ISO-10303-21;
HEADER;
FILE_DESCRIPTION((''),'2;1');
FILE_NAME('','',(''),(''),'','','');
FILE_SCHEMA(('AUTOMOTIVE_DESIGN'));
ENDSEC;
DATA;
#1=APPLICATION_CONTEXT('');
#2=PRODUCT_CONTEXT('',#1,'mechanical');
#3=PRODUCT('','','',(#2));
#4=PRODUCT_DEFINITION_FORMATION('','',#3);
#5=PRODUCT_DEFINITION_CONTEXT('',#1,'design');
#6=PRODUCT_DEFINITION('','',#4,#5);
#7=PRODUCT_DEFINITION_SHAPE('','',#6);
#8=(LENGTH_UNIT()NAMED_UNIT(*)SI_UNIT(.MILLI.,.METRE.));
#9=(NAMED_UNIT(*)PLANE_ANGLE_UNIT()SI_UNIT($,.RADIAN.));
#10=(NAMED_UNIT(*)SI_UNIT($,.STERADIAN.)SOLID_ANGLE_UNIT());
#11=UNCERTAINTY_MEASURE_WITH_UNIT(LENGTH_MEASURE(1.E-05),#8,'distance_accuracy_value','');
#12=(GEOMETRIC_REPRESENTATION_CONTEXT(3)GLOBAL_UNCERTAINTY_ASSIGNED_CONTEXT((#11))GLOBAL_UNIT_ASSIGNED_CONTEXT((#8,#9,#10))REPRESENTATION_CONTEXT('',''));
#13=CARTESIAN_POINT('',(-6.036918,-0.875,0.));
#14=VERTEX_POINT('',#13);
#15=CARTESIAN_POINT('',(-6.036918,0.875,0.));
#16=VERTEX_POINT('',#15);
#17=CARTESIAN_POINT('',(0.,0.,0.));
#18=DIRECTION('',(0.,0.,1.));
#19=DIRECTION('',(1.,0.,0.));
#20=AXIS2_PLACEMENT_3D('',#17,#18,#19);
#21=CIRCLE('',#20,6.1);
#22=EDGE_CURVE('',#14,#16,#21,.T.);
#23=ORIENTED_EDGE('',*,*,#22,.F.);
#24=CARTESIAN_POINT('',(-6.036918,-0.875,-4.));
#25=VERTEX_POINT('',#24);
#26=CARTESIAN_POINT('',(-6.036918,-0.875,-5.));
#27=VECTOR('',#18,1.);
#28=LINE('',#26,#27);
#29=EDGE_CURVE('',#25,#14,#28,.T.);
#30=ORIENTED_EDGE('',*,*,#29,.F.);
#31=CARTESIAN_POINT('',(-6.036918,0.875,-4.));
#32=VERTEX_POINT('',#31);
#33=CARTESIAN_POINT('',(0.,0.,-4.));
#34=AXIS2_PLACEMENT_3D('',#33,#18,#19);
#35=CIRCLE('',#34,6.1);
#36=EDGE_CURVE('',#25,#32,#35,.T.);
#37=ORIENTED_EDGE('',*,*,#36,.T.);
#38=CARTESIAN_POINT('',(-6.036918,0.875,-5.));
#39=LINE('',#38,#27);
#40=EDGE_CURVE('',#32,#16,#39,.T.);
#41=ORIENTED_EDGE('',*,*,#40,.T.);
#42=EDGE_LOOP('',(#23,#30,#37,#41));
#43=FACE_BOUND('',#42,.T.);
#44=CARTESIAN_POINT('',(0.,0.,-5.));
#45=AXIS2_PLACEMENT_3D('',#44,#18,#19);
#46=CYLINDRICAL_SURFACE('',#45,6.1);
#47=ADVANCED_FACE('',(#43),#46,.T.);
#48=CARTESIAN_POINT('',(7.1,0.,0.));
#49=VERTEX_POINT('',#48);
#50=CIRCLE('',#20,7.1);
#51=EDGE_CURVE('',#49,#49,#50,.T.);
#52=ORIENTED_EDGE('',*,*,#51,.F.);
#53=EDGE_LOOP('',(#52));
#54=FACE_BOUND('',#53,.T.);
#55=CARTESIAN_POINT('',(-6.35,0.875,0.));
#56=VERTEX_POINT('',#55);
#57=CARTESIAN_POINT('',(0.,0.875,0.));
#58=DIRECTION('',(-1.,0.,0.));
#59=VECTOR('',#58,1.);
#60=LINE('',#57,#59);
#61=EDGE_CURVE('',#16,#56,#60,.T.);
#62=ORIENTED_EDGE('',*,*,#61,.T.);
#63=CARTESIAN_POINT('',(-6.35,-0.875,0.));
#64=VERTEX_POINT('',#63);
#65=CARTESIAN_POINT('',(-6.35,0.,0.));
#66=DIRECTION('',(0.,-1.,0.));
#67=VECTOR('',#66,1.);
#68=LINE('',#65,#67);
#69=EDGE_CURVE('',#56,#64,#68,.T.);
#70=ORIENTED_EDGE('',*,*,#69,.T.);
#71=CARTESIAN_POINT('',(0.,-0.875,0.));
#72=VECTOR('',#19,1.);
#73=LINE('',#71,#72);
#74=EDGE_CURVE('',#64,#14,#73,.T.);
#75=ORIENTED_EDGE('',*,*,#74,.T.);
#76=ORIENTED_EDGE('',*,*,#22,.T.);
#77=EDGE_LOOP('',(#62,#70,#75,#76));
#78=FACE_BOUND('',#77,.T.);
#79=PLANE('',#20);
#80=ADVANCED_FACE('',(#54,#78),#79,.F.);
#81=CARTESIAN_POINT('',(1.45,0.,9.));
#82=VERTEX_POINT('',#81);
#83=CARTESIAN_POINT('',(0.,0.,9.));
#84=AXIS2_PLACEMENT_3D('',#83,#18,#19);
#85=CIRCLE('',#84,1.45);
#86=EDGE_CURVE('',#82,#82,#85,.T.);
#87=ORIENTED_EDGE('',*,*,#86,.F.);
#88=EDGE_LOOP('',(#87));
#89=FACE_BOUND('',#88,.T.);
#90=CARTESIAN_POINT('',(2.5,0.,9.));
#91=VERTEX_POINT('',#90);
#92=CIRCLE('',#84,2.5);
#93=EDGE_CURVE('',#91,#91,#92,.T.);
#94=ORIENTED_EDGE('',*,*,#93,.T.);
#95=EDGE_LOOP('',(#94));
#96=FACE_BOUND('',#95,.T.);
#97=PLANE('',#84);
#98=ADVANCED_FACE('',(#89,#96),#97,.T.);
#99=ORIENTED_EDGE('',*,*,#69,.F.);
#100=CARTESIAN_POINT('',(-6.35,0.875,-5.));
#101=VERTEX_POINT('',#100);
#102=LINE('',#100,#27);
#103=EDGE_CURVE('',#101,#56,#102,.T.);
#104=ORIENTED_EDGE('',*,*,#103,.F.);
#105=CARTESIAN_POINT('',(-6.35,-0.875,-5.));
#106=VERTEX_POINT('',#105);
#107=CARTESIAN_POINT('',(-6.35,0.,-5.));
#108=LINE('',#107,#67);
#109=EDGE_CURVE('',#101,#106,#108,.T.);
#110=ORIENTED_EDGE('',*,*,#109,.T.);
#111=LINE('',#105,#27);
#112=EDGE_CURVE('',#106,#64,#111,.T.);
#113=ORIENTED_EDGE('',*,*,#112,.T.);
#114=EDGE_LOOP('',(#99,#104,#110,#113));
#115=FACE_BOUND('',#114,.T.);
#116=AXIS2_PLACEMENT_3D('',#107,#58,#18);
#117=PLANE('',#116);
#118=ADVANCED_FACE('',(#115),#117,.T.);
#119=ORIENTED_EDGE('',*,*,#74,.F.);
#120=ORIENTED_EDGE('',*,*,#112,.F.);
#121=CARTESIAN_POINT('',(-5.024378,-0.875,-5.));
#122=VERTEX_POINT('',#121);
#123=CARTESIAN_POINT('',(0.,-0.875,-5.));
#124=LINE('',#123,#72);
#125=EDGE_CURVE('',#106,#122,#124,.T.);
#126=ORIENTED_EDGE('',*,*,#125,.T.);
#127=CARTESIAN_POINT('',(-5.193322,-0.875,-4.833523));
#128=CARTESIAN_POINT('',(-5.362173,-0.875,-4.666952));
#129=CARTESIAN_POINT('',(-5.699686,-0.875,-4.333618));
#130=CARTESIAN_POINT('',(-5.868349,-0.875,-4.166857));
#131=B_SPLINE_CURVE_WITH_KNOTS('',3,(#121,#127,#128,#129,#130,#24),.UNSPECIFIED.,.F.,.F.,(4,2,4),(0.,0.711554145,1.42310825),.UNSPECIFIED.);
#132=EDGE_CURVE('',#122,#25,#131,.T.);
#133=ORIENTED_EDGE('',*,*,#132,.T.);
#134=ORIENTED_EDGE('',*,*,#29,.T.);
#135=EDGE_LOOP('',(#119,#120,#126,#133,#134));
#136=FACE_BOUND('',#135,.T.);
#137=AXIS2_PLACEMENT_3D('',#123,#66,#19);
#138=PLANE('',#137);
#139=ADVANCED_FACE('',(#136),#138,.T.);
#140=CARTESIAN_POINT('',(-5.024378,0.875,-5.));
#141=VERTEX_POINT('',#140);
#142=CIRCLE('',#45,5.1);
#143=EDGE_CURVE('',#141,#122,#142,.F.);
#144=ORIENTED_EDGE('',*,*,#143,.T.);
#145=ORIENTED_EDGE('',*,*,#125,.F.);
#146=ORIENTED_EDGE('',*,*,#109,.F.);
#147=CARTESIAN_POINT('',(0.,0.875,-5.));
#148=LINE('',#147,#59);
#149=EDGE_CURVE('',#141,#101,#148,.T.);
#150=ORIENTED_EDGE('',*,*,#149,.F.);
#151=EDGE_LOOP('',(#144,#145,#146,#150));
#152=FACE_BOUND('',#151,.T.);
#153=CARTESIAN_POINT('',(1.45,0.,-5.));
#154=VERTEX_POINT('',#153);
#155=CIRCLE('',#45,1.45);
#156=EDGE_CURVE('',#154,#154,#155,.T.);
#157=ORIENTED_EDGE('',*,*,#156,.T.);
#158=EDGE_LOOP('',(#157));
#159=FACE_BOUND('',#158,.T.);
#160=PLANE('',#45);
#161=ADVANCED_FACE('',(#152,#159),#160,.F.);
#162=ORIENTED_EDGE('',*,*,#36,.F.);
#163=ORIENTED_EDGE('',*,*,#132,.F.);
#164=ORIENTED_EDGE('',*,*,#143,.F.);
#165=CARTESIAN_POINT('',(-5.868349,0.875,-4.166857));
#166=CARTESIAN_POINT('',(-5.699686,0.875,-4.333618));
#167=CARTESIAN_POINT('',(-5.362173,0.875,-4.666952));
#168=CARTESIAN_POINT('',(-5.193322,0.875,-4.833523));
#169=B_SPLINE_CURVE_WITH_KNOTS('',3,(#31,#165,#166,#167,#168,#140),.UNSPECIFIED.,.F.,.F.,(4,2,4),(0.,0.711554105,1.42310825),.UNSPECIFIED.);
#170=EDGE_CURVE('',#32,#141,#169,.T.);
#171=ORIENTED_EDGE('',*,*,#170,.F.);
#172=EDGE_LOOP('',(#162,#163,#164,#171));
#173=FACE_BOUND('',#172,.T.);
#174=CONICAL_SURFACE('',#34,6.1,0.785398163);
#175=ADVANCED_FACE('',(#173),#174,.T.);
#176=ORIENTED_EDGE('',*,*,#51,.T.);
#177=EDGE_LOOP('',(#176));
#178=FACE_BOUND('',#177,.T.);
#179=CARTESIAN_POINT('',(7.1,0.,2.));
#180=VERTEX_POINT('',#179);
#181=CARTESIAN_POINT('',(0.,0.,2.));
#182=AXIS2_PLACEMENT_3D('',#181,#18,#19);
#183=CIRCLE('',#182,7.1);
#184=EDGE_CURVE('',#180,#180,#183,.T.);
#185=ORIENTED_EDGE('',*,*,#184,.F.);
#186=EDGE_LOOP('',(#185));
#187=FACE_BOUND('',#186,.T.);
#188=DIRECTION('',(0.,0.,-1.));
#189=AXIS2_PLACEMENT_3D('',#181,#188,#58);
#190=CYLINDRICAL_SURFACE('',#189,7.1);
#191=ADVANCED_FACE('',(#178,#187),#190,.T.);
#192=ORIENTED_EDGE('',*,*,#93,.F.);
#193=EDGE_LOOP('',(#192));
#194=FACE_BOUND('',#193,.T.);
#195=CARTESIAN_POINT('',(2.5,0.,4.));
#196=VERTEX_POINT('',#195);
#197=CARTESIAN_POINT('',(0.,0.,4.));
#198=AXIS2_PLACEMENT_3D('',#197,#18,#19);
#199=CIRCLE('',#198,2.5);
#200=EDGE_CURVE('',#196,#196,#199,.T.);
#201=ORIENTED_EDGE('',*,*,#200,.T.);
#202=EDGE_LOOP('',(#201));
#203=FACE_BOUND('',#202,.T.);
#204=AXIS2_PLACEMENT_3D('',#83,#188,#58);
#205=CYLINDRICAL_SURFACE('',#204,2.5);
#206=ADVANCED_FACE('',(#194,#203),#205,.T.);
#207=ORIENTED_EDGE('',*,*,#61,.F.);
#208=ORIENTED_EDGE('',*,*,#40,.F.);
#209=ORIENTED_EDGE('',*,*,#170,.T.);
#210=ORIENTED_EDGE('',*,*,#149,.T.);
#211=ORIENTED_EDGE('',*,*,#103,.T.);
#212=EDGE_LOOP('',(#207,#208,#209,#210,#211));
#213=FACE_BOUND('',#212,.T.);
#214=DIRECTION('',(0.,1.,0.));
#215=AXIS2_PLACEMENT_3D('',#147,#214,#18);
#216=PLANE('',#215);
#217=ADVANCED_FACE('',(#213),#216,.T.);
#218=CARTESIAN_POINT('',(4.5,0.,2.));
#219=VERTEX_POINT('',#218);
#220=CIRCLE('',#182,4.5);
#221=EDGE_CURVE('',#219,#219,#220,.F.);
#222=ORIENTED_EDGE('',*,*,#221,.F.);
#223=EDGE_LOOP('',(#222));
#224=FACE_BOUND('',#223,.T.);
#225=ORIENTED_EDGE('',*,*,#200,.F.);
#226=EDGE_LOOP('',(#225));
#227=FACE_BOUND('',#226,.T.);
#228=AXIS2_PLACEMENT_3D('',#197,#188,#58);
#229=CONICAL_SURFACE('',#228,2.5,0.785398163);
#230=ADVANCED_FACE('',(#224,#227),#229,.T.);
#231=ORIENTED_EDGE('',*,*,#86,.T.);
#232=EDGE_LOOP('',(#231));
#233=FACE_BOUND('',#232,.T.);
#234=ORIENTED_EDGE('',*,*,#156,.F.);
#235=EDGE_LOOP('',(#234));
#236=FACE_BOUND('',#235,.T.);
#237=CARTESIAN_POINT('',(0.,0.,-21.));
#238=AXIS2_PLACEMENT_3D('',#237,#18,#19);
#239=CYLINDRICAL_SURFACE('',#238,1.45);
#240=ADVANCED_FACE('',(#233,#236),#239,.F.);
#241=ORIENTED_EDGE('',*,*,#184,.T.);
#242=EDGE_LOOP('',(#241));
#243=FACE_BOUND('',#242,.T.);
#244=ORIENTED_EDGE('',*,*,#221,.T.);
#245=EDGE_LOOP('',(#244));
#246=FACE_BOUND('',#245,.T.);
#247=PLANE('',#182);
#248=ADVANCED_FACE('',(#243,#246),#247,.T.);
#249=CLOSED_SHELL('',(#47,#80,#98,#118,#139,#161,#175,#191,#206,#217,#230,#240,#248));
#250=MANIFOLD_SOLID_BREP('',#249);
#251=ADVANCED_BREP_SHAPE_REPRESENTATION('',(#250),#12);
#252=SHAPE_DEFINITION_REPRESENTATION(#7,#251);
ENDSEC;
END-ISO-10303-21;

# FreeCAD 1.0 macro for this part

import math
import FreeCAD as App
import Part
import Sketcher

V = App.Vector


def edges_at(feature, points):
    """Names of the edges that pass closest to the given points."""
    edges = feature.Shape.Edges
    near = lambda p: min(range(len(edges)), key=lambda i: edges[i].distToShape(Part.Vertex(*p))[0])
    return sorted({f"Edge{near(p) + 1}" for p in points})

doc = App.newDocument("Part")
body = doc.addObject("PartDesign::Body", "Body")

sketch1 = body.newObject("Sketcher::SketchObject", "Sketch")
sketch1.AttachmentSupport = (doc.getObject("XY_Plane"), [""])
sketch1.MapMode = "FlatFace"
sketch1.addGeometry(Part.LineSegment(V(-6.35, -0.875, 0), V(-6.036918, -0.875, 0)), False)
sketch1.addGeometry(Part.ArcOfCircle(Part.Circle(V(0, 0, 0), V(0, 0, 1), 6.1), math.radians(-171.752895), math.radians(171.752895)), False)
sketch1.addGeometry(Part.LineSegment(V(-6.036918, 0.875, 0), V(-6.35, 0.875, 0)), False)
sketch1.addGeometry(Part.LineSegment(V(-6.35, 0.875, 0), V(-6.35, -0.875, 0)), False)
sketch1.addConstraint(Sketcher.Constraint("Coincident", 0, 2, 1, 1))
sketch1.addConstraint(Sketcher.Constraint("Coincident", 1, 2, 2, 1))
sketch1.addConstraint(Sketcher.Constraint("Coincident", 2, 2, 3, 1))
sketch1.addConstraint(Sketcher.Constraint("Coincident", 3, 2, 0, 1))
sketch1.addConstraint(Sketcher.Constraint("Horizontal", 0))
sketch1.addConstraint(Sketcher.Constraint("Horizontal", 2))
sketch1.addConstraint(Sketcher.Constraint("Vertical", 3))
sketch1.addConstraint(Sketcher.Constraint("Coincident", 1, 3, -1, 1))
sketch1.addConstraint(Sketcher.Constraint("Vertical", 0, 2, 1, 2))
sketch1.addConstraint(Sketcher.Constraint("Radius", 1, 6.1))
sketch1.addConstraint(Sketcher.Constraint("DistanceY", 3, 2, 3, 1, 1.75))
sketch1.addConstraint(Sketcher.Constraint("DistanceX", 2, 2, -1, 1, 6.35))
pad1 = body.newObject("PartDesign::Pad", "Pad")
pad1.Profile = sketch1
pad1.Length = 5
pad1.Reversed = True

sketch2 = body.newObject("Sketcher::SketchObject", "Sketch001")
sketch2.AttachmentSupport = (doc.getObject("XY_Plane"), [""])
sketch2.MapMode = "FlatFace"
sketch2.addGeometry(Part.Circle(V(0, 0, 0), V(0, 0, 1), 7.1), False)
sketch2.addConstraint(Sketcher.Constraint("Coincident", 0, 3, -1, 1))
sketch2.addConstraint(Sketcher.Constraint("Diameter", 0, 14.2))
pad2 = body.newObject("PartDesign::Pad", "Pad001")
pad2.Profile = sketch2
pad2.Length = 2

sketch3 = body.newObject("Sketcher::SketchObject", "Sketch002")
sketch3.AttachmentSupport = (doc.getObject("XY_Plane"), [""])
sketch3.MapMode = "FlatFace"
sketch3.AttachmentOffset = App.Placement(V(0, 0, 2), App.Rotation())
sketch3.addGeometry(Part.Circle(V(0, 0, 0), V(0, 0, 1), 2.5), False)
sketch3.addConstraint(Sketcher.Constraint("Coincident", 0, 3, -1, 1))
sketch3.addConstraint(Sketcher.Constraint("Diameter", 0, 5.0))
pad3 = body.newObject("PartDesign::Pad", "Pad002")
pad3.Profile = sketch3
pad3.Length = 7
doc.recompute()

chamfer = body.newObject("PartDesign::Chamfer", "Chamfer")
chamfer.Base = (pad3, edges_at(pad3, [(-2.5, 0, 2)]))
chamfer.Size = 2

sketch4 = body.newObject("Sketcher::SketchObject", "Sketch003")
sketch4.AttachmentSupport = (doc.getObject("XY_Plane"), [""])
sketch4.MapMode = "FlatFace"
sketch4.AttachmentOffset = App.Placement(V(0, 0, 9), App.Rotation())
sketch4.addGeometry(Part.Circle(V(0, 0, 0), V(0, 0, 1), 1.45), False)
sketch4.addConstraint(Sketcher.Constraint("Coincident", 0, 3, -1, 1))
sketch4.addConstraint(Sketcher.Constraint("Diameter", 0, 2.9))
pocket1 = body.newObject("PartDesign::Pocket", "Pocket")
pocket1.Profile = sketch4
pocket1.Length = 30
doc.recompute()

chamfer2 = body.newObject("PartDesign::Chamfer", "Chamfer001")
chamfer2.Base = (pocket1, edges_at(pocket1, [(6.1, 0, -5)]))
chamfer2.Size = 1

doc.recompute()
